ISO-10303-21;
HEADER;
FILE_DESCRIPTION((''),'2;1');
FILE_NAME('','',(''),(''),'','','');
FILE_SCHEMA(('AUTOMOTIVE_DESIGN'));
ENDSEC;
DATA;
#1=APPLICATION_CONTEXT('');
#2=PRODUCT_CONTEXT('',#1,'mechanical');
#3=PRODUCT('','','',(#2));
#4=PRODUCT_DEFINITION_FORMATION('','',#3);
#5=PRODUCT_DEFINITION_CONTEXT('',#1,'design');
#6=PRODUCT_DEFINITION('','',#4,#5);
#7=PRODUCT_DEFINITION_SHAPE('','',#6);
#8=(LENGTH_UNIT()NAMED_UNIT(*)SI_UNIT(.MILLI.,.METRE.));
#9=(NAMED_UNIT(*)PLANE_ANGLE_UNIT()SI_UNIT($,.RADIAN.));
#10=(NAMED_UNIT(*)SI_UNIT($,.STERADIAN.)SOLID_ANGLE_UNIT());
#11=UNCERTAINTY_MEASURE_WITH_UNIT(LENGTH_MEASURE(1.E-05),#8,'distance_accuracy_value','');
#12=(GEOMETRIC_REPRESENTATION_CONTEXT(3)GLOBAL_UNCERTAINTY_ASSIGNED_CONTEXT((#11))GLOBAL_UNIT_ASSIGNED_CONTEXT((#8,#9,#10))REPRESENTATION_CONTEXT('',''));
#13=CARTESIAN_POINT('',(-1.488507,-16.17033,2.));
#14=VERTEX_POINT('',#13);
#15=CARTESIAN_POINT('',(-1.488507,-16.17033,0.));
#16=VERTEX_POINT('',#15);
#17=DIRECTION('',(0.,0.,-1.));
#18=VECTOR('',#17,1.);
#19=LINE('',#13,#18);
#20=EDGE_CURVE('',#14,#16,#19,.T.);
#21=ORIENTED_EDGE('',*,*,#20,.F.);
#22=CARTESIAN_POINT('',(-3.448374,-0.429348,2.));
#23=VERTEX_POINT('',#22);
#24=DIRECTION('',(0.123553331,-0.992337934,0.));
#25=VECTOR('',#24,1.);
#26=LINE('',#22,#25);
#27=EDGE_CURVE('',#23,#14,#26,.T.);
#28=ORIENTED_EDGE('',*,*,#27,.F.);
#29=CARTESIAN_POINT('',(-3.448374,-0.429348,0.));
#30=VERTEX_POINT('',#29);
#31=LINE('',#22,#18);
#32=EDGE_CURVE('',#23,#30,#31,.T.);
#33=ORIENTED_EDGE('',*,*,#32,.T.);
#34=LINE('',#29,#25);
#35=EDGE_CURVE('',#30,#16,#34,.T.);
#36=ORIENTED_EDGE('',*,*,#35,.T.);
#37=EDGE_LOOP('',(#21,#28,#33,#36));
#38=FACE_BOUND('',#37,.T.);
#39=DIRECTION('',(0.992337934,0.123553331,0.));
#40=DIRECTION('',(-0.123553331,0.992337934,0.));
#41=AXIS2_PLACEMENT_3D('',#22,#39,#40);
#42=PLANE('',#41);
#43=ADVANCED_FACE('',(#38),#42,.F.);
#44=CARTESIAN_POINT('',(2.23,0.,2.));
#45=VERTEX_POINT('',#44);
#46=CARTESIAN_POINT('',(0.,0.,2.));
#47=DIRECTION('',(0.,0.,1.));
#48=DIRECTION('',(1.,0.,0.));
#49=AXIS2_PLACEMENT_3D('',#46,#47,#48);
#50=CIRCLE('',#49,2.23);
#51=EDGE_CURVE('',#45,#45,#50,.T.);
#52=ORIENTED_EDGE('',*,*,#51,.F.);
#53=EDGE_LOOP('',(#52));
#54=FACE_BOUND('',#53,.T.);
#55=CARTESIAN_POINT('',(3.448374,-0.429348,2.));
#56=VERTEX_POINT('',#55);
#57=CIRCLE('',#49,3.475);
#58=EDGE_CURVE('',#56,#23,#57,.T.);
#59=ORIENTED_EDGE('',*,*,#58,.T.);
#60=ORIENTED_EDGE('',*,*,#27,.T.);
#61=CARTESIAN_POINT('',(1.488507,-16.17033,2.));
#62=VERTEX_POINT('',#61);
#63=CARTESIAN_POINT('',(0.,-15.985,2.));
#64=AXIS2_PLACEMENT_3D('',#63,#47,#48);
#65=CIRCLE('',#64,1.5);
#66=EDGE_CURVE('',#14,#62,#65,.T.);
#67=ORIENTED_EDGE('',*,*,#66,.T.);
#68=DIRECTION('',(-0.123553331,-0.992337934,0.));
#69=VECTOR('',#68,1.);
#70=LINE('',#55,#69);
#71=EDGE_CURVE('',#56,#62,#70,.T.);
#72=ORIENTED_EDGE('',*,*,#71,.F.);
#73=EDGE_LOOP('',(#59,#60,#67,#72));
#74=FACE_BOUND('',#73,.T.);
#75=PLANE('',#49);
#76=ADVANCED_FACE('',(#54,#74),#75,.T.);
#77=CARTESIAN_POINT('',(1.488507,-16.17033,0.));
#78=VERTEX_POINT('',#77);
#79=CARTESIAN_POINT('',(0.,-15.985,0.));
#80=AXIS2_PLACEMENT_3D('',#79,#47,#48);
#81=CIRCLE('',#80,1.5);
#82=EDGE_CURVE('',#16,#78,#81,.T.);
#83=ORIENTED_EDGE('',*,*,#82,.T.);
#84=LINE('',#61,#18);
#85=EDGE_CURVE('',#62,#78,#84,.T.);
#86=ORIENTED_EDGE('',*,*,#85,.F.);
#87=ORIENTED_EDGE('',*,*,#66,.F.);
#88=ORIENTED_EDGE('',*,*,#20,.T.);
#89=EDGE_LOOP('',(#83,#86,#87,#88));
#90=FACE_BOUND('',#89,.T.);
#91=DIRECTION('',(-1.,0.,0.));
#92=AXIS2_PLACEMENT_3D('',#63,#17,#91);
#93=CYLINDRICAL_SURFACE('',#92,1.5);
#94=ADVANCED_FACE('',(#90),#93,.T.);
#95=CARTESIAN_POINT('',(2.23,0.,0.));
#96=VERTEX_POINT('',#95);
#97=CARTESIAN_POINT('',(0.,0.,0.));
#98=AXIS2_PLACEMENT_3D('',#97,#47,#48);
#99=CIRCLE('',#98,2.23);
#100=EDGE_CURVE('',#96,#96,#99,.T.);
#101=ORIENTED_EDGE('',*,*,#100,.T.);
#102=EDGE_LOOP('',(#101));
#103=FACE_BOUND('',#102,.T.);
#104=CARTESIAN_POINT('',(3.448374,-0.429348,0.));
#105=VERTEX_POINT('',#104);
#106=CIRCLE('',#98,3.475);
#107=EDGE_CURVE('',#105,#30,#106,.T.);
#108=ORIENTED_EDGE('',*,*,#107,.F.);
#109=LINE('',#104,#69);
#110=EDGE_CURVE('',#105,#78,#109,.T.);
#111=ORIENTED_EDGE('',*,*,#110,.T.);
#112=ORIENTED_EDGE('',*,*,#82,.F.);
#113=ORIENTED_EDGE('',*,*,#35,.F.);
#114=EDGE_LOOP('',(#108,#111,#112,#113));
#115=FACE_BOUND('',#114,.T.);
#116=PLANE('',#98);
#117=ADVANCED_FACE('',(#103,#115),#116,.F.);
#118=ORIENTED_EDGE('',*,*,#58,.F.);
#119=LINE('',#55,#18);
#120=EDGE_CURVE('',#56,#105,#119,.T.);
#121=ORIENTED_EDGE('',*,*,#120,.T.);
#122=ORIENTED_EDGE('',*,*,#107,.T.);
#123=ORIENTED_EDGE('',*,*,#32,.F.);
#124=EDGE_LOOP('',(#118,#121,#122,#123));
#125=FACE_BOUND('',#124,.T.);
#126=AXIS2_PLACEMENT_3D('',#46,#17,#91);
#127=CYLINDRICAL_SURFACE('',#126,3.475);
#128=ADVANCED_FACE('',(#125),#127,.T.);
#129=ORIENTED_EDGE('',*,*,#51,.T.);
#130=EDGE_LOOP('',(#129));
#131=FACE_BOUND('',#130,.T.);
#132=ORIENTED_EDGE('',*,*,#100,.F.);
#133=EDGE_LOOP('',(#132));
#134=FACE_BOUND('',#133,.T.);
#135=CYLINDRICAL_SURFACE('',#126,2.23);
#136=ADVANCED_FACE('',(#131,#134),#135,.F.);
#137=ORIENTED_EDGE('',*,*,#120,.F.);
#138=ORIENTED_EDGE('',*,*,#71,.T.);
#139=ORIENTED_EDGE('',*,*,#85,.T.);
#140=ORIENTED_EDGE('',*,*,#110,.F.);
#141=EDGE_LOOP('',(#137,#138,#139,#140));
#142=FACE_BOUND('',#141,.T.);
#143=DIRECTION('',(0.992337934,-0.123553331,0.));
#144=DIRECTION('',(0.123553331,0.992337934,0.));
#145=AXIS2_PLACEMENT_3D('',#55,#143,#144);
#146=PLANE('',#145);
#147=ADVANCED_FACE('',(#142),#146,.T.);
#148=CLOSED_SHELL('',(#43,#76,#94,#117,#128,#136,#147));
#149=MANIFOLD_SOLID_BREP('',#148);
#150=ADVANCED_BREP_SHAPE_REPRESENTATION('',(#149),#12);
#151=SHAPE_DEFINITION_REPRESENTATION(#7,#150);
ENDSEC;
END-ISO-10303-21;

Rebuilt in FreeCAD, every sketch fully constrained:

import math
import FreeCAD as App
import Part
import Sketcher

doc = App.newDocument("Part")
body = doc.addObject("PartDesign::Body", "Body")

sketch1 = body.newObject("Sketcher::SketchObject", "Sketch")
sketch1.AttachmentSupport = (doc.getObject("XY_Plane"), [""])
sketch1.MapMode = "FlatFace"
sketch1.addGeometry([
    Part.LineSegment(App.Vector(-3.4, -0.4, 0), App.Vector(-1.5, -16.2, 0)),
    Part.ArcOfCircle(Part.Circle(App.Vector(0, -16, 0), App.Vector(0, 0, 1), 1.5), math.radians(-173), math.radians(-7)),
    Part.LineSegment(App.Vector(1.5, -16.2, 0), App.Vector(3.4, -0.4, 0)),
    Part.ArcOfCircle(Part.Circle(App.Vector(0, 0, 0), App.Vector(0, 0, 1), 3.5), math.radians(-7), math.radians(187)),
    Part.Circle(App.Vector(0, 0, 0), App.Vector(0, 0, 1), 2.2),
], False)
sketch1.addConstraint([
    Sketcher.Constraint("Tangent", 0, 2, 1, 1),
    Sketcher.Constraint("Tangent", 1, 2, 2, 1),
    Sketcher.Constraint("Tangent", 2, 2, 3, 1),
    Sketcher.Constraint("Tangent", 3, 2, 0, 1),
    Sketcher.Constraint("Coincident", 3, 3, -1, 1),
    Sketcher.Constraint("Coincident", 4, 3, -1, 1),
    Sketcher.Constraint("PointOnObject", 1, 3, -2),
    Sketcher.Constraint("Radius", 1, 1.5),
    Sketcher.Constraint("Diameter", 4, 4.46),
    Sketcher.Constraint("Radius", 3, 3.475),
    Sketcher.Constraint("DistanceY", 1, 3, -1, 1, 15.985),
])
pad1 = body.newObject("PartDesign::Pad", "Pad")
pad1.Profile = sketch1
pad1.Length = 2

doc.recompute()
